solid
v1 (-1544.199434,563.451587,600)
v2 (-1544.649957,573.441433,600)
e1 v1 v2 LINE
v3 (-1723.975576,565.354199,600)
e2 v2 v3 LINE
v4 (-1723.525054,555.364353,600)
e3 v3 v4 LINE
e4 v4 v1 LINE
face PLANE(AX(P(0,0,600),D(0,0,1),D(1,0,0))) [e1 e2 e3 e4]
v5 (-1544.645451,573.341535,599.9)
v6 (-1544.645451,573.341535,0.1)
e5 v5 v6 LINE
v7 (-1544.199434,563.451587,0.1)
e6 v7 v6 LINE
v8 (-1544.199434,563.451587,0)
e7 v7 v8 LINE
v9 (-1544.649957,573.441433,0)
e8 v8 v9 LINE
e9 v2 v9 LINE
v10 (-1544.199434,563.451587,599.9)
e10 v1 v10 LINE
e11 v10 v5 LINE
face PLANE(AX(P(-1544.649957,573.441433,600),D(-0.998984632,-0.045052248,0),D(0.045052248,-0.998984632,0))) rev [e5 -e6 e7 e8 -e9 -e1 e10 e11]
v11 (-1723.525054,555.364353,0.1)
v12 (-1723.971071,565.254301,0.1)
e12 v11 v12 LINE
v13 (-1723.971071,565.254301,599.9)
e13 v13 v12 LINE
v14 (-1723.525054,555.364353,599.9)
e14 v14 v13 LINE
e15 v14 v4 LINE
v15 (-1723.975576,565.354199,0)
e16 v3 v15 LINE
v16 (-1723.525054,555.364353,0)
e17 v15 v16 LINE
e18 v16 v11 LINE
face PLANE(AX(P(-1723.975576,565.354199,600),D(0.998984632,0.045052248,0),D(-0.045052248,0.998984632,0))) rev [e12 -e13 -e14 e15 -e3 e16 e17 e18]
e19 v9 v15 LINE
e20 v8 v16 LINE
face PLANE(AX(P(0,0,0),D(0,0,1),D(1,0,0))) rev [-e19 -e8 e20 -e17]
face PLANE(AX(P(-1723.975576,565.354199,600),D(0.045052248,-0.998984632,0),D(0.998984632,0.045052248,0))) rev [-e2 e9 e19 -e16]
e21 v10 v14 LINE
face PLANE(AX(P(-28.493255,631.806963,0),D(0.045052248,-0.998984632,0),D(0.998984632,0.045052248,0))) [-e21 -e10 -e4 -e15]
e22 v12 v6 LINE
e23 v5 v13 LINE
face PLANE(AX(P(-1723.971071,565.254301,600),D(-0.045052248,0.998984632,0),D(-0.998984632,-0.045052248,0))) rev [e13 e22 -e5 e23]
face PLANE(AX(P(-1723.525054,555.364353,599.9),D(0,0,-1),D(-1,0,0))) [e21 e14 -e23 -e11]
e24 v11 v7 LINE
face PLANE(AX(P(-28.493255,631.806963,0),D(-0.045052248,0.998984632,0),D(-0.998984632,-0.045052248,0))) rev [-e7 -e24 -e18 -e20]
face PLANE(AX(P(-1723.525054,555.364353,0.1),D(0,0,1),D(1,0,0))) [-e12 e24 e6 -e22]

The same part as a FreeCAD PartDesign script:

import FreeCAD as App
import Part
import Sketcher
Q = App.Units.Quantity

doc = App.newDocument("Part")
params = doc.addObject("Spreadsheet::Sheet", "Params")
for row, (alias, value) in enumerate([
    ("sketch1_length", "0.1 mm"),
    ("pad1_length", "600 mm"),
    ("sketch2_height", "0.1 mm"),
    ("pad2_length", "10 mm"),
    ("sketch3_height", "0.1 mm"),
    ("pad3_length", "10 mm"),
], start=1):
    params.set(f"A{row}", alias)
    params.set(f"B{row}", "=" + value)
    params.setAlias(f"B{row}", alias)

body = doc.addObject("PartDesign::Body", "Body")

# Sketch on XY plane
sketch1 = body.newObject("Sketcher::SketchObject", "Sketch")
sketch1.AttachmentSupport = (doc.getObject("XY_Plane"), [""])
sketch1.MapMode = "FlatFace"
sketch1.addGeometry([
    Part.LineSegment(App.Vector(-1723.97, 565.25, 0), App.Vector(-1544.65, 573.34, 0)),
    Part.LineSegment(App.Vector(-1544.65, 573.34, 0), App.Vector(-1544.65, 573.44, 0)),
    Part.LineSegment(App.Vector(-1544.65, 573.44, 0), App.Vector(-1723.98, 565.35, 0)),
    Part.LineSegment(App.Vector(-1723.98, 565.35, 0), App.Vector(-1723.97, 565.25, 0)),
], False)
sketch1.addConstraint([
    Sketcher.Constraint("Coincident", 0, 2, 1, 1),
    Sketcher.Constraint("Coincident", 1, 2, 2, 1),
    Sketcher.Constraint("Coincident", 2, 2, 3, 1),
    Sketcher.Constraint("Coincident", 3, 2, 0, 1),
    Sketcher.Constraint("Perpendicular", 0, 1),
    Sketcher.Constraint("Parallel", 0, 2),
    Sketcher.Constraint("Perpendicular", 2, 3),
    Sketcher.Constraint("Distance", 1, Q("0.1 mm")),
    Sketcher.Constraint("DistanceY", -1, 1, 2, 2, Q("565.354199 mm")),
    Sketcher.Constraint("DistanceX", 0, 2, -1, 1, Q("1544.645451 mm")),
    Sketcher.Constraint("DistanceX", 3, 2, -1, 1, Q("1723.971071 mm")),
    Sketcher.Constraint("Distance", 0, Q("179.507886 mm")),
])
sketch1.setExpression("Constraints[7]", "Params.sketch1_length")
pad1 = body.newObject("PartDesign::Pad", "Pad")
pad1.Profile = sketch1
pad1.setExpression("Length", "Params.pad1_length")

# Sketch on an angled plane
sketch2 = body.newObject("Sketcher::SketchObject", "Sketch001")
sketch2.Placement = App.Placement(App.Vector(-28.943778, 641.79681, 0), App.Rotation(App.Vector(0.998984632, 0.045052248, 0), App.Vector(0, 0, -1), App.Vector(-0.045052248, 0.998984632, 0), "ZXY"))
sketch2.addGeometry([
    Part.LineSegment(App.Vector(-1696.754629, 0, 0), App.Vector(-1696.754629, -0.1, 0)),
    Part.LineSegment(App.Vector(-1696.754629, -0.1, 0), App.Vector(-1517.246743, -0.1, 0)),
    Part.LineSegment(App.Vector(-1517.246743, -0.1, 0), App.Vector(-1517.246743, 0, 0)),
    Part.LineSegment(App.Vector(-1517.246743, 0, 0), App.Vector(-1696.754629, 0, 0)),
], False)
sketch2.addConstraint([
    Sketcher.Constraint("Coincident", 0, 2, 1, 1),
    Sketcher.Constraint("Coincident", 1, 2, 2, 1),
    Sketcher.Constraint("Coincident", 2, 2, 3, 1),
    Sketcher.Constraint("Coincident", 3, 2, 0, 1),
    Sketcher.Constraint("Vertical", 0),
    Sketcher.Constraint("Horizontal", 1),
    Sketcher.Constraint("Vertical", 2),
    Sketcher.Constraint("Horizontal", 3),
    Sketcher.Constraint("PointOnObject", 2, 2, -1),
    Sketcher.Constraint("DistanceY", 0, 2, 0, 1, Q("0.1 mm")),
    Sketcher.Constraint("DistanceX", 1, 1, 1, 2, Q("179.507886 mm")),
    Sketcher.Constraint("DistanceX", 0, 2, -1, 1, Q("1696.754629 mm")),
])
sketch2.setExpression("Constraints[9]", "Params.sketch2_height")
pad2 = body.newObject("PartDesign::Pad", "Pad001")
pad2.Profile = sketch2
pad2.setExpression("Length", "Params.pad2_length")
pad2.Reversed = True

# Sketch on an angled plane
sketch3 = body.newObject("Sketcher::SketchObject", "Sketch002")
sketch3.Placement = App.Placement(App.Vector(-28.943778, 641.79681, 0), App.Rotation(App.Vector(0.998984632, 0.045052248, 0), App.Vector(0, 0, -1), App.Vector(-0.045052248, 0.998984632, 0), "ZXY"))
sketch3.addGeometry([
    Part.LineSegment(App.Vector(-1696.754629, -599.9, 0), App.Vector(-1696.754629, -600, 0)),
    Part.LineSegment(App.Vector(-1696.754629, -600, 0), App.Vector(-1517.246743, -600, 0)),
    Part.LineSegment(App.Vector(-1517.246743, -600, 0), App.Vector(-1517.246743, -599.9, 0)),
    Part.LineSegment(App.Vector(-1517.246743, -599.9, 0), App.Vector(-1696.754629, -599.9, 0)),
], False)
sketch3.addConstraint([
    Sketcher.Constraint("Coincident", 0, 2, 1, 1),
    Sketcher.Constraint("Coincident", 1, 2, 2, 1),
    Sketcher.Constraint("Coincident", 2, 2, 3, 1),
    Sketcher.Constraint("Coincident", 3, 2, 0, 1),
    Sketcher.Constraint("Vertical", 0),
    Sketcher.Constraint("Horizontal", 1),
    Sketcher.Constraint("Vertical", 2),
    Sketcher.Constraint("Horizontal", 3),
    Sketcher.Constraint("DistanceY", 0, 2, 0, 1, Q("0.1 mm")),
    Sketcher.Constraint("DistanceY", 0, 2, -1, 1, Q("600 mm")),
    Sketcher.Constraint("DistanceX", 1, 1, 1, 2, Q("179.507886 mm")),
    Sketcher.Constraint("DistanceX", 0, 2, -1, 1, Q("1696.754629 mm")),
])
sketch3.setExpression("Constraints[8]", "Params.sketch3_height")
pad3 = body.newObject("PartDesign::Pad", "Pad002")
pad3.Profile = sketch3
pad3.setExpression("Length", "Params.pad3_length")
pad3.Reversed = True

doc.recompute()
